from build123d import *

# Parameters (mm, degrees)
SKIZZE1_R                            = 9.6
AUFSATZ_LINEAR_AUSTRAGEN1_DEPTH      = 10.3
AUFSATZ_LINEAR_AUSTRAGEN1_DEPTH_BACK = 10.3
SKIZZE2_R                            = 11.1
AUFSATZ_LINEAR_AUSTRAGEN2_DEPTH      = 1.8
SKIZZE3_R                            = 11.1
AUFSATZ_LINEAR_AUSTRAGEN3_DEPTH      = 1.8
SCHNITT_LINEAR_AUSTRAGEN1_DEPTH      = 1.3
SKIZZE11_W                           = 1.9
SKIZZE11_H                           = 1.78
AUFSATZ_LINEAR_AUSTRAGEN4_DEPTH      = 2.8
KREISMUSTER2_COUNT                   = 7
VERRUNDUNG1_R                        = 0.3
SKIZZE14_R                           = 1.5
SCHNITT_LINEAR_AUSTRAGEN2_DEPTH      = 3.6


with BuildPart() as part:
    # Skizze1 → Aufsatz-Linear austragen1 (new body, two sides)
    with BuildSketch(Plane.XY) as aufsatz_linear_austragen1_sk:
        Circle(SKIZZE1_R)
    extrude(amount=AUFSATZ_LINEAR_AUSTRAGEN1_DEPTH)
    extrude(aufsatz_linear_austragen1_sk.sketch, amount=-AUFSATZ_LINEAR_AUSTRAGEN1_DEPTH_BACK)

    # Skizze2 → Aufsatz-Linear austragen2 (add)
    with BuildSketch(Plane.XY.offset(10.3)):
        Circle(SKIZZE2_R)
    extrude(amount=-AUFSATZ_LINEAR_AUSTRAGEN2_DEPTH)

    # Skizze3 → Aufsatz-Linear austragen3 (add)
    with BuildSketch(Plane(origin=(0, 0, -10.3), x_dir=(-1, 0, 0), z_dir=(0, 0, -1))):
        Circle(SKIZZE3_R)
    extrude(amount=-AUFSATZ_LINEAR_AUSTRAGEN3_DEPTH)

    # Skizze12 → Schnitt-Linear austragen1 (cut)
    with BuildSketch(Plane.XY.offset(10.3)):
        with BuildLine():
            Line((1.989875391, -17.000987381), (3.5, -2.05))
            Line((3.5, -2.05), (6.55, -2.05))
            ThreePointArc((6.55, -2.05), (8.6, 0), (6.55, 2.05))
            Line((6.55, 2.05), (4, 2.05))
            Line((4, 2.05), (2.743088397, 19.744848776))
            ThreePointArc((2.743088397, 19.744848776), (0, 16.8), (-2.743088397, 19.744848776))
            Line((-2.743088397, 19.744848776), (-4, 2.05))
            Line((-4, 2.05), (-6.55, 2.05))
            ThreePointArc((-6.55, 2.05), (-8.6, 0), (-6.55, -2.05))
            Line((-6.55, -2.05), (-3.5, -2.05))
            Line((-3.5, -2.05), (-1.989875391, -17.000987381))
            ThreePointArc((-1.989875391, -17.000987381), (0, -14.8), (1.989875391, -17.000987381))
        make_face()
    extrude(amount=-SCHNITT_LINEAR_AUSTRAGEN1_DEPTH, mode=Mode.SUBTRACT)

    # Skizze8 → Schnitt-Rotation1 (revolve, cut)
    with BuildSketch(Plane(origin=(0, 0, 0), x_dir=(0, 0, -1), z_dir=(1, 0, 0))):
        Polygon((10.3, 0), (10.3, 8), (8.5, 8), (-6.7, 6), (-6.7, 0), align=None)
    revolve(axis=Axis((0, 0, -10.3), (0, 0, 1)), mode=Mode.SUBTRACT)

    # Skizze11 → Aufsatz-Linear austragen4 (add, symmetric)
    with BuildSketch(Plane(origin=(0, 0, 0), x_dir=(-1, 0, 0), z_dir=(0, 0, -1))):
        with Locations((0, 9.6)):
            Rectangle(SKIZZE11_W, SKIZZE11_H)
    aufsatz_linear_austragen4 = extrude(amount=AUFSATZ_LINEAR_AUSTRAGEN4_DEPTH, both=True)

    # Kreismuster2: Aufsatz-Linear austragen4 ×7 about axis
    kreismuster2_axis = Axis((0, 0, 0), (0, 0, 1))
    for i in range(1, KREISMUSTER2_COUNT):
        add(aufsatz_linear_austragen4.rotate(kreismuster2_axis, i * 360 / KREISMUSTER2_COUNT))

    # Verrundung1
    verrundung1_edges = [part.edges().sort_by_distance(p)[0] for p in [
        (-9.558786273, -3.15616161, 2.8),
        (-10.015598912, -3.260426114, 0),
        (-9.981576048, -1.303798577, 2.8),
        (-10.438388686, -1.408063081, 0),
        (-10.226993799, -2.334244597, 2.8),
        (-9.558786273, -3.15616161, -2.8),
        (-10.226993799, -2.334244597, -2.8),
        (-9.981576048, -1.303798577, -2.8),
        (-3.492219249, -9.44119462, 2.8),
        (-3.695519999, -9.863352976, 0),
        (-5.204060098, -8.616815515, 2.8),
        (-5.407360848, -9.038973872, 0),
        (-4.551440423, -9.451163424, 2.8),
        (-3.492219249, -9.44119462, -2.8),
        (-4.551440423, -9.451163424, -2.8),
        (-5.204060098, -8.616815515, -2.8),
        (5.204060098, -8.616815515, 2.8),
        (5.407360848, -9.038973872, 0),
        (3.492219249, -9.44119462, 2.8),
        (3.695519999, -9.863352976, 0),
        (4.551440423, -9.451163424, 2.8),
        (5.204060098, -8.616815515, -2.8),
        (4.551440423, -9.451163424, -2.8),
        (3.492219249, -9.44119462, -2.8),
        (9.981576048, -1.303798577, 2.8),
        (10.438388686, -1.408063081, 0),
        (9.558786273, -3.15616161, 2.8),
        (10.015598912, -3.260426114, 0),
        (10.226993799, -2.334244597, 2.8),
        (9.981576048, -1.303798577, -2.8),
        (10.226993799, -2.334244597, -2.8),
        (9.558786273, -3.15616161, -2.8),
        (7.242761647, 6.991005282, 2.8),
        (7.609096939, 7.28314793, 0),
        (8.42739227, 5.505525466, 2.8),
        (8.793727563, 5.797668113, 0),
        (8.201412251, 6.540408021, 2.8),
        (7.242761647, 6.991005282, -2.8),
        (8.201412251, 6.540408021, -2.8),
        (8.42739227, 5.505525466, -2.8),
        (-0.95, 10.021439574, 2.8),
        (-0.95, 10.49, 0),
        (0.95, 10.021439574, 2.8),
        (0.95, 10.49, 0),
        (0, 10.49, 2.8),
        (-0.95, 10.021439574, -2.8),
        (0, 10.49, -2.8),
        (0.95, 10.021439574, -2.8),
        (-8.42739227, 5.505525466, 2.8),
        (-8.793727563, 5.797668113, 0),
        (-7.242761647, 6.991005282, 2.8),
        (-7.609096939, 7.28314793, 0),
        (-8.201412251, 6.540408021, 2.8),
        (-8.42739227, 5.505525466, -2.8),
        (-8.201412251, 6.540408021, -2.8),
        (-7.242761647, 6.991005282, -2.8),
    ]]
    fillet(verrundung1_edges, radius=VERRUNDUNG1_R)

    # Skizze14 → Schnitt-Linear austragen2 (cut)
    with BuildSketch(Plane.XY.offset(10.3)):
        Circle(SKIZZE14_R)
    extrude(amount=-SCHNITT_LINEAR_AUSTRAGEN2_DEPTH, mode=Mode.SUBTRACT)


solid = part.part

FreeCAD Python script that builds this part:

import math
import FreeCAD as App
import Part
import Sketcher
from FreeCAD import Vector


def edges_at(feature, points):
    """Names of the edges that pass closest to the given points."""
    edges = feature.Shape.Edges
    near = lambda p: min(range(len(edges)), key=lambda i: edges[i].distToShape(Part.Vertex(*p))[0])
    return sorted({f"Edge{near(p) + 1}" for p in points})


def add_polygon(sketch, points):
    """Adds a closed chain of lines whose ends are joined by coincident constraints."""
    first, n = sketch.GeometryCount, len(points)
    for a, b in zip(points, points[1:] + points[:1]):
        sketch.addGeometry(Part.LineSegment(App.Vector(*a, 0), App.Vector(*b, 0)), False)
    for i in range(n):
        sketch.addConstraint(Sketcher.Constraint("Coincident", first + i, 2, first + (i + 1) % n, 1))

doc = App.newDocument("Part")
body = doc.addObject("PartDesign::Body", "Body")

# Sketch on XY plane
sketch1 = body.newObject("Sketcher::SketchObject", "Sketch")
sketch1.AttachmentSupport = (doc.getObject("XY_Plane"), [""])
sketch1.MapMode = "FlatFace"
sketch1.addGeometry(Part.Circle(Vector(0, 0, 0), Vector(0, 0, 1), 10), False)
sketch1.addConstraint(Sketcher.Constraint("Coincident", 0, 3, -1, 1))
sketch1.addConstraint(Sketcher.Constraint("Diameter", 0, 19.2))
pad1 = body.newObject("PartDesign::Pad", "Pad")
pad1.Profile = sketch1
pad1.Type = "TwoLengths"
pad1.Length = 10.3
pad1.Length2 = 10.3

# Sketch on XY plane
sketch2 = body.newObject("Sketcher::SketchObject", "Sketch001")
sketch2.AttachmentSupport = (doc.getObject("XY_Plane"), [""])
sketch2.MapMode = "FlatFace"
sketch2.AttachmentOffset = App.Placement(Vector(0, 0, 10.3), App.Rotation())
sketch2.addGeometry(Part.Circle(Vector(0, 0, 0), Vector(0, 0, 1), 11), False)
sketch2.addConstraint(Sketcher.Constraint("Coincident", 0, 3, -1, 1))
sketch2.addConstraint(Sketcher.Constraint("Diameter", 0, 22.2))
pad2 = body.newObject("PartDesign::Pad", "Pad001")
pad2.Profile = sketch2
pad2.Length = 1.8
pad2.Reversed = True

# Sketch on XY plane
sketch3 = body.newObject("Sketcher::SketchObject", "Sketch002")
sketch3.AttachmentSupport = (doc.getObject("XY_Plane"), [""])
sketch3.MapMode = "FlatFace"
sketch3.AttachmentOffset = App.Placement(Vector(0, 0, -10.3), App.Rotation())
sketch3.addGeometry(Part.Circle(Vector(0, 0, 0), Vector(0, 0, 1), 11), False)
sketch3.addConstraint(Sketcher.Constraint("Coincident", 0, 3, -1, 1))
sketch3.addConstraint(Sketcher.Constraint("Diameter", 0, 22.2))
pad3 = body.newObject("PartDesign::Pad", "Pad002")
pad3.Profile = sketch3
pad3.Length = 1.8

# Sketch on XY plane
sketch4 = body.newObject("Sketcher::SketchObject", "Sketch003")
sketch4.AttachmentSupport = (doc.getObject("XY_Plane"), [""])
sketch4.MapMode = "FlatFace"
sketch4.AttachmentOffset = App.Placement(Vector(0, 0, 10.3), App.Rotation())
sketch4.addGeometry(Part.LineSegment(Vector(2, -17, 0), Vector(3.5, -2, 0)), False)
sketch4.addGeometry(Part.LineSegment(Vector(3.5, -2, 0), Vector(6.5, -2, 0)), False)
sketch4.addGeometry(Part.ArcOfCircle(Part.Circle(Vector(6.5, 0, 0), Vector(0, 0, 1), 2), math.radians(-90), math.radians(90)), False)
sketch4.addGeometry(Part.LineSegment(Vector(6.5, 2, 0), Vector(4, 2, 0)), False)
sketch4.addGeometry(Part.LineSegment(Vector(4, 2, 0), Vector(2.7, 19.7, 0)), False)
sketch4.addGeometry(Part.ArcOfCircle(Part.Circle(Vector(0, 19.6, 0), Vector(0, 0, 1), 2.8), math.radians(176), math.radians(364)), False)
sketch4.addGeometry(Part.LineSegment(Vector(-2.7, 19.7, 0), Vector(-4, 2, 0)), False)
sketch4.addGeometry(Part.LineSegment(Vector(-4, 2, 0), Vector(-6.5, 2, 0)), False)
sketch4.addGeometry(Part.ArcOfCircle(Part.Circle(Vector(-6.5, 0, 0), Vector(0, 0, 1), 2), math.radians(90), math.radians(270)), False)
sketch4.addGeometry(Part.LineSegment(Vector(-6.5, -2, 0), Vector(-3.5, -2, 0)), False)
sketch4.addGeometry(Part.LineSegment(Vector(-3.5, -2, 0), Vector(-2, -17, 0)), False)
sketch4.addGeometry(Part.ArcOfCircle(Part.Circle(Vector(0, -16.8, 0), Vector(0, 0, 1), 2), math.radians(-6), math.radians(186)), False)
sketch4.addConstraint(Sketcher.Constraint("Coincident", 0, 2, 1, 1))
sketch4.addConstraint(Sketcher.Constraint("Tangent", 1, 2, 2, 1))
sketch4.addConstraint(Sketcher.Constraint("Tangent", 2, 2, 3, 1))
sketch4.addConstraint(Sketcher.Constraint("Coincident", 3, 2, 4, 1))
sketch4.addConstraint(Sketcher.Constraint("Tangent", 4, 2, 5, 2))
sketch4.addConstraint(Sketcher.Constraint("Tangent", 5, 1, 6, 1))
sketch4.addConstraint(Sketcher.Constraint("Coincident", 6, 2, 7, 1))
sketch4.addConstraint(Sketcher.Constraint("Tangent", 7, 2, 8, 1))
sketch4.addConstraint(Sketcher.Constraint("Tangent", 8, 2, 9, 1))
sketch4.addConstraint(Sketcher.Constraint("Coincident", 9, 2, 10, 1))
sketch4.addConstraint(Sketcher.Constraint("Tangent", 10, 2, 11, 2))
sketch4.addConstraint(Sketcher.Constraint("Tangent", 11, 1, 0, 1))
sketch4.addConstraint(Sketcher.Constraint("Horizontal", 1))
sketch4.addConstraint(Sketcher.Constraint("Horizontal", 3))
sketch4.addConstraint(Sketcher.Constraint("Horizontal", 7))
sketch4.addConstraint(Sketcher.Constraint("Horizontal", 9))
sketch4.addConstraint(Sketcher.Constraint("Equal", 2, 8))
sketch4.addConstraint(Sketcher.Constraint("Symmetric", 2, 3, 8, 3, -1, 1))
sketch4.addConstraint(Sketcher.Constraint("Symmetric", 4, 2, 5, 1, -2))
sketch4.addConstraint(Sketcher.Constraint("Symmetric", 0, 2, 9, 2, -2))
sketch4.addConstraint(Sketcher.Constraint("PointOnObject", 11, 3, -2))
sketch4.addConstraint(Sketcher.Constraint("Radius", 11, 2.0))
sketch4.addConstraint(Sketcher.Constraint("Radius", 2, 2.05))
sketch4.addConstraint(Sketcher.Constraint("Radius", 5, 2.75))
sketch4.addConstraint(Sketcher.Constraint("DistanceX", -1, 1, 3, 2, 4.0))
sketch4.addConstraint(Sketcher.Constraint("DistanceX", 9, 2, 0, 2, 7.0))
sketch4.addConstraint(Sketcher.Constraint("DistanceX", 1, 1, 1, 2, 3.05))
sketch4.addConstraint(Sketcher.Constraint("DistanceY", 11, 3, -1, 1, 16.8))
sketch4.addConstraint(Sketcher.Constraint("DistanceY", 0, 2, 5, 3, 21.6))
pocket1 = body.newObject("PartDesign::Pocket", "Pocket")
pocket1.Profile = sketch4
pocket1.Length = 1.3

# Sketch on YZ plane
sketch5 = body.newObject("Sketcher::SketchObject", "Sketch004")
sketch5.AttachmentSupport = (doc.getObject("YZ_Plane"), [""])
sketch5.MapMode = "FlatFace"
add_polygon(sketch5, [(0, -10.3), (8, -10.3), (8, -8.5), (6, 6.7), (0, 6.7)])  # lines 0-4
sketch5.addConstraint(Sketcher.Constraint("Horizontal", 0))
sketch5.addConstraint(Sketcher.Constraint("Vertical", 1))
sketch5.addConstraint(Sketcher.Constraint("Horizontal", 3))
sketch5.addConstraint(Sketcher.Constraint("Vertical", 4))
sketch5.addConstraint(Sketcher.Constraint("PointOnObject", 3, 2, -2))
sketch5.addConstraint(Sketcher.Constraint("DistanceX", 0, 1, 0, 2, 8.0))
sketch5.addConstraint(Sketcher.Constraint("DistanceX", 3, 2, 3, 1, 6.0))
sketch5.addConstraint(Sketcher.Constraint("DistanceY", 4, 2, 4, 1, 17.0))
sketch5.addConstraint(Sketcher.Constraint("DistanceY", 1, 1, 1, 2, 1.8))
sketch5.addConstraint(Sketcher.Constraint("DistanceY", 0, 2, -1, 1, 10.3))
groove = body.newObject("PartDesign::Groove", "Groove")
groove.Profile = sketch5
groove.ReferenceAxis = (sketch5, ["V_Axis"])
groove.Angle = 360

# Sketch on XY plane
sketch6 = body.newObject("Sketcher::SketchObject", "Sketch005")
sketch6.AttachmentSupport = (doc.getObject("XY_Plane"), [""])
sketch6.MapMode = "FlatFace"
add_polygon(sketch6, [(0.9, 10.5), (0.9, 8.7), (-0.9, 8.7), (-0.9, 10.5)])  # lines 0-3
sketch6.addConstraint(Sketcher.Constraint("Vertical", 0))
sketch6.addConstraint(Sketcher.Constraint("Horizontal", 1))
sketch6.addConstraint(Sketcher.Constraint("Vertical", 2))
sketch6.addConstraint(Sketcher.Constraint("Horizontal", 3))
sketch6.addConstraint(Sketcher.Constraint("DistanceX", 1, 2, 1, 1, 1.9))
sketch6.addConstraint(Sketcher.Constraint("DistanceY", 0, 2, 0, 1, 1.78))
sketch6.addConstraint(Sketcher.Constraint("DistanceX", -1, 1, 0, 2, 0.95))
sketch6.addConstraint(Sketcher.Constraint("DistanceY", -1, 1, 0, 2, 8.71))
pad4 = body.newObject("PartDesign::Pad", "Pad003")
pad4.Profile = sketch6
pad4.Length = 5.6
pad4.Midplane = True
doc.recompute()

polarpattern = body.newObject("PartDesign::PolarPattern", "PolarPattern")
polarpattern.Originals = [pad4]
polarpattern.Axis = (doc.getObject("Z_Axis"), [""])
polarpattern.Angle = 360
polarpattern.Occurrences = 7
body.Tip = polarpattern
doc.recompute()

fillet = body.newObject("PartDesign::Fillet", "Fillet")
fillet.Base = (polarpattern, edges_at(polarpattern, [
    (-9.559, -3.156, 2.8),
    (-10.016, -3.26, 0),
    (-9.982, -1.304, 2.8),
    (-10.438, -1.408, 0),
    (-10.227, -2.334, 2.8),
    (-9.559, -3.156, -2.8),
    (-10.227, -2.334, -2.8),
    (-9.982, -1.304, -2.8),
    (-3.492, -9.441, 2.8),
    (-3.696, -9.863, 0),
    (-5.204, -8.617, 2.8),
    (-5.407, -9.039, 0),
    (-4.551, -9.451, 2.8),
    (-3.492, -9.441, -2.8),
    (-4.551, -9.451, -2.8),
    (-5.204, -8.617, -2.8),
    (5.204, -8.617, 2.8),
    (5.407, -9.039, 0),
    (3.492, -9.441, 2.8),
    (3.696, -9.863, 0),
    (4.551, -9.451, 2.8),
    (5.204, -8.617, -2.8),
    (4.551, -9.451, -2.8),
    (3.492, -9.441, -2.8),
    (9.982, -1.304, 2.8),
    (10.438, -1.408, 0),
    (9.559, -3.156, 2.8),
    (10.016, -3.26, 0),
    (10.227, -2.334, 2.8),
    (9.982, -1.304, -2.8),
    (10.227, -2.334, -2.8),
    (9.559, -3.156, -2.8),
    (7.243, 6.991, 2.8),
    (7.609, 7.283, 0),
    (8.427, 5.506, 2.8),
    (8.794, 5.798, 0),
    (8.201, 6.54, 2.8),
    (7.243, 6.991, -2.8),
    (8.201, 6.54, -2.8),
    (8.427, 5.506, -2.8),
    (-0.95, 10.021, 2.8),
    (-0.95, 10.49, 0),
    (0.95, 10.021, 2.8),
    (0.95, 10.49, 0),
    (0, 10.49, 2.8),
    (-0.95, 10.021, -2.8),
    (0, 10.49, -2.8),
    (0.95, 10.021, -2.8),
    (-8.427, 5.506, 2.8),
    (-8.794, 5.798, 0),
    (-7.243, 6.991, 2.8),
    (-7.609, 7.283, 0),
    (-8.201, 6.54, 2.8),
    (-8.427, 5.506, -2.8),
    (-8.201, 6.54, -2.8),
    (-7.243, 6.991, -2.8),
]))
fillet.Radius = 0.3

# Sketch on XY plane
sketch7 = body.newObject("Sketcher::SketchObject", "Sketch006")
sketch7.AttachmentSupport = (doc.getObject("XY_Plane"), [""])
sketch7.MapMode = "FlatFace"
sketch7.AttachmentOffset = App.Placement(Vector(0, 0, 10.3), App.Rotation())
sketch7.addGeometry(Part.Circle(Vector(0, 0, 0), Vector(0, 0, 1), 1.5), False)
sketch7.addConstraint(Sketcher.Constraint("Coincident", 0, 3, -1, 1))
sketch7.addConstraint(Sketcher.Constraint("Diameter", 0, 3.0))
pocket2 = body.newObject("PartDesign::Pocket", "Pocket001")
pocket2.Profile = sketch7
pocket2.Length = 3.6

doc.recompute()
